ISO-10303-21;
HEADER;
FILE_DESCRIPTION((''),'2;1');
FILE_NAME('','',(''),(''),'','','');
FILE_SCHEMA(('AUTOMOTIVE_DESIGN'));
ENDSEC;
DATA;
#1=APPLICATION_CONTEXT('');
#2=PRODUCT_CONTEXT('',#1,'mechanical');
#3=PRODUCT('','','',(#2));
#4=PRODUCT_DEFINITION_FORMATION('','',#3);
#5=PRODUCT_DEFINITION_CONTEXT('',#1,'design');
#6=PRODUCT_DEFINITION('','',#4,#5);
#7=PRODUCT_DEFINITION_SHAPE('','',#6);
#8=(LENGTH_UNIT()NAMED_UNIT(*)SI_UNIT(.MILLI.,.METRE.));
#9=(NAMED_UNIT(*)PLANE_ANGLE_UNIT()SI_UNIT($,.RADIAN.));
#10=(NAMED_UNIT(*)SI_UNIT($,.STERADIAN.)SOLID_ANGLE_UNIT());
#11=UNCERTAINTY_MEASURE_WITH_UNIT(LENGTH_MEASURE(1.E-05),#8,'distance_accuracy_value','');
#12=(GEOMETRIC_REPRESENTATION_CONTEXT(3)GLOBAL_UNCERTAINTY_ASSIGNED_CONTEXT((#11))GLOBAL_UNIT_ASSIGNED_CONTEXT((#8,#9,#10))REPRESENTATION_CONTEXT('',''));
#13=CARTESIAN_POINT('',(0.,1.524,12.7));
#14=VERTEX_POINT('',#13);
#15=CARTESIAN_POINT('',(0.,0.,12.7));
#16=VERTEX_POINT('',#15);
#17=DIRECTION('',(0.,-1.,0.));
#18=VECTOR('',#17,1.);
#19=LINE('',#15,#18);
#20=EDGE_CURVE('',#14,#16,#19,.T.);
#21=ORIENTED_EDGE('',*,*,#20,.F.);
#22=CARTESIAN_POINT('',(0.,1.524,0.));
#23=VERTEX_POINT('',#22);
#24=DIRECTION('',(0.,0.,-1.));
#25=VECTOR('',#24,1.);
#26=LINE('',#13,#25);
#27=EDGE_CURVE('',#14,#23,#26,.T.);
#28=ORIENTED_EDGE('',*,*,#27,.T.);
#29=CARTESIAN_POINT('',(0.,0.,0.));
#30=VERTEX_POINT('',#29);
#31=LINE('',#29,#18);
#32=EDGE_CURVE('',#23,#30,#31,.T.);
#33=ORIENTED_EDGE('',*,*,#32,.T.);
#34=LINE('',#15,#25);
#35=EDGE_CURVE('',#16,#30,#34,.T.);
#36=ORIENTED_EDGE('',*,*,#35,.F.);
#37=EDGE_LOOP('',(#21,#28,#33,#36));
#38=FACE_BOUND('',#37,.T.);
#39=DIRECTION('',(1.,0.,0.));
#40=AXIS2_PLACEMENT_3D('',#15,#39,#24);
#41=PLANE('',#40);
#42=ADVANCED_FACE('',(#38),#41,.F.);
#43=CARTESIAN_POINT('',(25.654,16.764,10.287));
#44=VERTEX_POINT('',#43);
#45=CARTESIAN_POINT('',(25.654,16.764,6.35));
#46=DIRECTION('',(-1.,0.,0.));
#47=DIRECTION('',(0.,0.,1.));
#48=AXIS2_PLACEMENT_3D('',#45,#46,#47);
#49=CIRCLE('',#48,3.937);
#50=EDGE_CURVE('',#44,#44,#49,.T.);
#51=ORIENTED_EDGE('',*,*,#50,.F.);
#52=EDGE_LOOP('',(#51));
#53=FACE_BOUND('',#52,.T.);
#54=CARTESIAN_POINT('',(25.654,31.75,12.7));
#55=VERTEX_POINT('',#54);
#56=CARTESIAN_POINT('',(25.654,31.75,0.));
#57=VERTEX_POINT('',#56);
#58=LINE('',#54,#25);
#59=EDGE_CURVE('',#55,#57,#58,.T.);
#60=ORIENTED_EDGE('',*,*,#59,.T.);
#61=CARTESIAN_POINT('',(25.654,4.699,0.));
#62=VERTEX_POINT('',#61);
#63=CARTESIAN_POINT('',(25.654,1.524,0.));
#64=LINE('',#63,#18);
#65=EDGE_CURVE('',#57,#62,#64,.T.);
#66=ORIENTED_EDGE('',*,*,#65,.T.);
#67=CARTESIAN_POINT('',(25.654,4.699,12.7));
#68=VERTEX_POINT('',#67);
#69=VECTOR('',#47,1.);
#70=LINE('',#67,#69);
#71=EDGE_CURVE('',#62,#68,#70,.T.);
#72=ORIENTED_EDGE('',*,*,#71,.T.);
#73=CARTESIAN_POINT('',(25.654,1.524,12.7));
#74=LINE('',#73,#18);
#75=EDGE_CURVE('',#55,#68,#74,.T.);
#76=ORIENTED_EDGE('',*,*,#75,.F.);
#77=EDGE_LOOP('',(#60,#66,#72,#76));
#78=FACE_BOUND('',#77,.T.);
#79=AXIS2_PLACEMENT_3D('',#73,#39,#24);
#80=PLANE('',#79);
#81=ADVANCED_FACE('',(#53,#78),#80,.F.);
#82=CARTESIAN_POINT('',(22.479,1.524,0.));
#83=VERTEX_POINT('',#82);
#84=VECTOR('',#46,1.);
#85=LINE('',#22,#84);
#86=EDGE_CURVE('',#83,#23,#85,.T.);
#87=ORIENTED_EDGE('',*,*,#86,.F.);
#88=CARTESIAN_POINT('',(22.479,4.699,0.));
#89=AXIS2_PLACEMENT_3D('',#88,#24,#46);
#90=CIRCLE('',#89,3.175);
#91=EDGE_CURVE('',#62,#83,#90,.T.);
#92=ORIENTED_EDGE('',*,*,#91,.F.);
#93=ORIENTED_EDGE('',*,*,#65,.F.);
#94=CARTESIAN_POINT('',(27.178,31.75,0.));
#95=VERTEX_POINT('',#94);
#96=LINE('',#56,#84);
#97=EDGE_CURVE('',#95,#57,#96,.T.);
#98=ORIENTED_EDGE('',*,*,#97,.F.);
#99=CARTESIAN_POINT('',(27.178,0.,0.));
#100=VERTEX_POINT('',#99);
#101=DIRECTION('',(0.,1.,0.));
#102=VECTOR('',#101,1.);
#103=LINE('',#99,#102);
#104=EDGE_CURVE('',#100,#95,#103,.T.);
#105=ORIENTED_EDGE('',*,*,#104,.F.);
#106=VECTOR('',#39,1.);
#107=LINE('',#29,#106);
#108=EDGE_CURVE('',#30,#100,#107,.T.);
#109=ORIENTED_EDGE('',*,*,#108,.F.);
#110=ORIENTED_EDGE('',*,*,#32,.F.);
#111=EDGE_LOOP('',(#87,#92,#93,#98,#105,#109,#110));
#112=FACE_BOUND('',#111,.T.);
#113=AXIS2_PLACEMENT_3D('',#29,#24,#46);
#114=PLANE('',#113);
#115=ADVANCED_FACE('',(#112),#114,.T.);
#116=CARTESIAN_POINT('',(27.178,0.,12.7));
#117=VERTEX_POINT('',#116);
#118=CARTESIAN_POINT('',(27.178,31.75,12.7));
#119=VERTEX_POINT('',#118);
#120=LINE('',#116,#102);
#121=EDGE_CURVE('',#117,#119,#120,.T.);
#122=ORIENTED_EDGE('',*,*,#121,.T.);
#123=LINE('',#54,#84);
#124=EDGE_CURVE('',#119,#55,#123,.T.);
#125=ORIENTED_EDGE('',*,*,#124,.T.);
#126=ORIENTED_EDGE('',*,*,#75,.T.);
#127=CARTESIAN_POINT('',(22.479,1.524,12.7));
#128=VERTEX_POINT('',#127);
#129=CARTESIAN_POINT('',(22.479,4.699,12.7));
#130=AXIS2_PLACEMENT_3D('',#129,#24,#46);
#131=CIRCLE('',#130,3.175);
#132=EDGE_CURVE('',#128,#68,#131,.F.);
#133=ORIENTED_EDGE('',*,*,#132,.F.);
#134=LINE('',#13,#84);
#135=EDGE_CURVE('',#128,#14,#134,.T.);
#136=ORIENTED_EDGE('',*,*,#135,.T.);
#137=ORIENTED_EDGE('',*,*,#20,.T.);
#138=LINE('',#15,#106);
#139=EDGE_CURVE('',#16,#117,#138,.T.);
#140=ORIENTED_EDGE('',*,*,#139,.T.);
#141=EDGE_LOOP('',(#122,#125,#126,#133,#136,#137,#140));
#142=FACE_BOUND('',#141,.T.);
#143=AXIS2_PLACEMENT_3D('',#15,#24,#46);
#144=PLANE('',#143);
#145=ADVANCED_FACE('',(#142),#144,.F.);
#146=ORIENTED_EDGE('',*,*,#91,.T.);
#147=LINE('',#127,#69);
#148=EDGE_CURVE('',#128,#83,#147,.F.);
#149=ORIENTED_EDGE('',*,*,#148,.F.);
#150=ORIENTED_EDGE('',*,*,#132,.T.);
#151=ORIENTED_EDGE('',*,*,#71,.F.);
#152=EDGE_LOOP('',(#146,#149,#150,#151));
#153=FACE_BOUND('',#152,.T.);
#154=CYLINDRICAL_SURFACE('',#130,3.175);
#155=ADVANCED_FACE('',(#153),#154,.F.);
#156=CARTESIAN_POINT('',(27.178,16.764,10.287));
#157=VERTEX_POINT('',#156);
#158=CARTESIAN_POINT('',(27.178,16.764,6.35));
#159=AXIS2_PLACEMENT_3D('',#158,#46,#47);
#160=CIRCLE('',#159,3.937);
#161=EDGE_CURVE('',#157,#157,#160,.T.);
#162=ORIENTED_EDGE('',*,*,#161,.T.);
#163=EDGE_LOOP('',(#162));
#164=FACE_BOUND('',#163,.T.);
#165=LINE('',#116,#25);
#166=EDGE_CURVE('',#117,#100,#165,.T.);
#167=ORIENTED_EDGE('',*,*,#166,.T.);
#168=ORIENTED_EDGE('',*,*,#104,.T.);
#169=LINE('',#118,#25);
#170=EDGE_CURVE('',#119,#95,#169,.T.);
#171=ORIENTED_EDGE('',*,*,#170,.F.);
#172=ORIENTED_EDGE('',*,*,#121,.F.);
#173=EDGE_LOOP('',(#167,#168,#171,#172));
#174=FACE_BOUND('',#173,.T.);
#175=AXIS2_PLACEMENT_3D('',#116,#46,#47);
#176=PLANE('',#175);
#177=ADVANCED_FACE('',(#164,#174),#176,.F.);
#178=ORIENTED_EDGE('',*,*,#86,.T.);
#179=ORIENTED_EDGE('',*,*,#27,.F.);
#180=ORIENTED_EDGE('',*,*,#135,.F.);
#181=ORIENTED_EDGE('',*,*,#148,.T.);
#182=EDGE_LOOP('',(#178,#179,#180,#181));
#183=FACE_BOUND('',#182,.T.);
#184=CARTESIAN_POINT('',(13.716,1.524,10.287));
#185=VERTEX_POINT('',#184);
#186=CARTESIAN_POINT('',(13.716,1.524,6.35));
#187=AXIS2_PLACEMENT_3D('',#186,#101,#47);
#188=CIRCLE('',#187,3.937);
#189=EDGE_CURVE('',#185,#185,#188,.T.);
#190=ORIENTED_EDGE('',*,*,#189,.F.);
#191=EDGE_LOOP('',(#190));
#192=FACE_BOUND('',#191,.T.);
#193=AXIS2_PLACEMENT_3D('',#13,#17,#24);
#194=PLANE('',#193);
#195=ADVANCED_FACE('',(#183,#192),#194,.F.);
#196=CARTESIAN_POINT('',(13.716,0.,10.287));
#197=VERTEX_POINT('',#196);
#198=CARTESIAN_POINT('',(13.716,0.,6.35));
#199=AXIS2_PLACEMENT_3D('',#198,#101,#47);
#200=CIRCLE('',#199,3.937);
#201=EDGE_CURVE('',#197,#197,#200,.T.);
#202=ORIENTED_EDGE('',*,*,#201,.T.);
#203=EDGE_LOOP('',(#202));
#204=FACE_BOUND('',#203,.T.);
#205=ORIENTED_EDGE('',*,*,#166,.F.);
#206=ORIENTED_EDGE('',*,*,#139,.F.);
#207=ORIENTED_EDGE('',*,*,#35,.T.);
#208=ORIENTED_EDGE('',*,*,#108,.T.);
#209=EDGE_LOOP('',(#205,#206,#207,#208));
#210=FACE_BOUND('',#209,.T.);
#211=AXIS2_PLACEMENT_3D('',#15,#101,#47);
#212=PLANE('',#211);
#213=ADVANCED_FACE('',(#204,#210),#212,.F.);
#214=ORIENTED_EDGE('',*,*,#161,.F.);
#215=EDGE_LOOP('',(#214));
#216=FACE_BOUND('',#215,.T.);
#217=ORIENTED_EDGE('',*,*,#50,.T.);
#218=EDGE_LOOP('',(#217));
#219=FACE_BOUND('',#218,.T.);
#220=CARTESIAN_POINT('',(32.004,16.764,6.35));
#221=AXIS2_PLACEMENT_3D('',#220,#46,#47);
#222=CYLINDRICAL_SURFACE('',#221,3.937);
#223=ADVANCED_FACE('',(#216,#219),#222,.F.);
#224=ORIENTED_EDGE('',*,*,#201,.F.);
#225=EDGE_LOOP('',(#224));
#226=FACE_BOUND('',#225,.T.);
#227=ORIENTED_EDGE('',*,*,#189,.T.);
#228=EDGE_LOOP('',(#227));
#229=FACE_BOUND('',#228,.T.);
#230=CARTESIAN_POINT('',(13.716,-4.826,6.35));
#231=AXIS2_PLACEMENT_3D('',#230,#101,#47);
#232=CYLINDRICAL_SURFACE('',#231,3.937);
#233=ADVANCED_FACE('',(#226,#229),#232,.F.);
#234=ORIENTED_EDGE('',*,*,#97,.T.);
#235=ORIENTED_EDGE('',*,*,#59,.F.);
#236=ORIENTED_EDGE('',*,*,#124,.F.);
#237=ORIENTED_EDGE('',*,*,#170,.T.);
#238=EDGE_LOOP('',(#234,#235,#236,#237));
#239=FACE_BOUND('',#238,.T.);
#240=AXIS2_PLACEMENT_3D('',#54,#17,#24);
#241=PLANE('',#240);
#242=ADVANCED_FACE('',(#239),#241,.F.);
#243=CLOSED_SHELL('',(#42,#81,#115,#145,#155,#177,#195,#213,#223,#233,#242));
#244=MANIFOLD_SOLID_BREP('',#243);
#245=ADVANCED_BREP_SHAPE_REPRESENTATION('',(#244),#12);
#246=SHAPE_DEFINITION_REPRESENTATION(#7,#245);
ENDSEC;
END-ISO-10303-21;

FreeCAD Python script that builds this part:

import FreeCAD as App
import Part
import Sketcher
Q = App.Units.Quantity


def edges_at(feature, points):
    """Names of the edges that pass closest to the given points."""
    edges = feature.Shape.Edges
    near = lambda p: min(range(len(edges)), key=lambda i: edges[i].distToShape(Part.Vertex(*p))[0])
    return sorted({f"Edge{near(p) + 1}" for p in points})

doc = App.newDocument("Part")
params = doc.addObject("Spreadsheet::Sheet", "Params")
for row, (alias, value) in enumerate([
    ("sketch1_width", "1.07 in"),
    ("sketch1_width2", "0.06 in"),
    ("sketch1_height", "1.25 in"),
    ("pad1_length", "0.5 in"),
    ("sketch2_diameter", "0.31 in"),
    ("pocket1_length", "0.25 in"),
    ("sketch3_diameter", "0.31 in"),
    ("pocket2_length", "0.25 in"),
    ("fillet_radius", "0.125 in"),
], start=1):
    params.set(f"A{row}", alias)
    params.set(f"B{row}", "=" + value)
    params.setAlias(f"B{row}", alias)

body = doc.addObject("PartDesign::Body", "Body")

sketch1 = body.newObject("Sketcher::SketchObject", "Sketch")
sketch1.AttachmentSupport = (doc.getObject("XY_Plane"), [""])
sketch1.MapMode = "FlatFace"
sketch1.addGeometry([
    Part.LineSegment(App.Vector(0, 0, 0), App.Vector(27.178, 0, 0)),
    Part.LineSegment(App.Vector(27.178, 0, 0), App.Vector(27.178, 31.75, 0)),
    Part.LineSegment(App.Vector(27.178, 31.75, 0), App.Vector(25.654, 31.75, 0)),
    Part.LineSegment(App.Vector(25.654, 31.75, 0), App.Vector(25.654, 1.524, 0)),
    Part.LineSegment(App.Vector(25.654, 1.524, 0), App.Vector(0, 1.524, 0)),
    Part.LineSegment(App.Vector(0, 1.524, 0), App.Vector(0, 0, 0)),
], False)
sketch1.addConstraint([
    Sketcher.Constraint("Coincident", 0, 2, 1, 1),
    Sketcher.Constraint("Coincident", 1, 2, 2, 1),
    Sketcher.Constraint("Coincident", 2, 2, 3, 1),
    Sketcher.Constraint("Coincident", 3, 2, 4, 1),
    Sketcher.Constraint("Coincident", 4, 2, 5, 1),
    Sketcher.Constraint("Coincident", 5, 2, 0, 1),
    Sketcher.Constraint("Horizontal", 0),
    Sketcher.Constraint("Vertical", 1),
    Sketcher.Constraint("Horizontal", 2),
    Sketcher.Constraint("Vertical", 3),
    Sketcher.Constraint("Horizontal", 4),
    Sketcher.Constraint("Vertical", 5),
    Sketcher.Constraint("Coincident", 5, 2, -1, 1),
    Sketcher.Constraint("Equal", 2, 5),
    Sketcher.Constraint("DistanceX", 0, 1, 0, 2, Q("1.07 in")),
    Sketcher.Constraint("DistanceX", 2, 2, 2, 1, Q("0.06 in")),
    Sketcher.Constraint("DistanceY", 1, 1, 1, 2, Q("1.25 in")),
])
sketch1.setExpression("Constraints[14]", "Params.sketch1_width")
sketch1.setExpression("Constraints[15]", "Params.sketch1_width2")
sketch1.setExpression("Constraints[16]", "Params.sketch1_height")
pad1 = body.newObject("PartDesign::Pad", "Pad")
pad1.Profile = sketch1
pad1.setExpression("Length", "Params.pad1_length")

sketch2 = body.newObject("Sketcher::SketchObject", "Sketch001")
sketch2.AttachmentSupport = (doc.getObject("YZ_Plane"), [""])
sketch2.MapMode = "FlatFace"
sketch2.AttachmentOffset = App.Placement(App.Vector(0, 0, 1.01 * 25.4), App.Rotation())
sketch2.addGeometry(Part.Circle(App.Vector(16.764, 6.35, 0), App.Vector(0, 0, 1), 3.937), False)
sketch2.addConstraint([
    Sketcher.Constraint("Diameter", 0, Q("0.31 in")),
    Sketcher.Constraint("DistanceX", -1, 1, 0, 3, Q("0.66 in")),
    Sketcher.Constraint("DistanceY", -1, 1, 0, 3, Q("0.25 in")),
])
sketch2.setExpression("Constraints[0]", "Params.sketch2_diameter")
pocket1 = body.newObject("PartDesign::Pocket", "Pocket")
pocket1.Profile = sketch2
pocket1.setExpression("Length", "Params.pocket1_length")
pocket1.Reversed = True

sketch3 = body.newObject("Sketcher::SketchObject", "Sketch002")
sketch3.AttachmentSupport = (doc.getObject("XZ_Plane"), [""])
sketch3.MapMode = "FlatFace"
sketch3.AttachmentOffset = App.Placement(App.Vector(0, 0, -0.06 * 25.4), App.Rotation())
sketch3.addGeometry(Part.Circle(App.Vector(13.716, 6.35, 0), App.Vector(0, 0, 1), 3.937), False)
sketch3.addConstraint([
    Sketcher.Constraint("Diameter", 0, Q("0.31 in")),
    Sketcher.Constraint("DistanceX", -1, 1, 0, 3, Q("0.54 in")),
    Sketcher.Constraint("DistanceY", -1, 1, 0, 3, Q("0.25 in")),
])
sketch3.setExpression("Constraints[0]", "Params.sketch3_diameter")
pocket2 = body.newObject("PartDesign::Pocket", "Pocket001")
pocket2.Profile = sketch3
pocket2.setExpression("Length", "Params.pocket2_length")
pocket2.Reversed = True
doc.recompute()

fillet = body.newObject("PartDesign::Fillet", "Fillet")
fillet.Base = (pocket2, edges_at(pocket2, [(25.654, 1.524, 6.35)]))
fillet.setExpression("Radius", "Params.fillet_radius")

doc.recompute()
